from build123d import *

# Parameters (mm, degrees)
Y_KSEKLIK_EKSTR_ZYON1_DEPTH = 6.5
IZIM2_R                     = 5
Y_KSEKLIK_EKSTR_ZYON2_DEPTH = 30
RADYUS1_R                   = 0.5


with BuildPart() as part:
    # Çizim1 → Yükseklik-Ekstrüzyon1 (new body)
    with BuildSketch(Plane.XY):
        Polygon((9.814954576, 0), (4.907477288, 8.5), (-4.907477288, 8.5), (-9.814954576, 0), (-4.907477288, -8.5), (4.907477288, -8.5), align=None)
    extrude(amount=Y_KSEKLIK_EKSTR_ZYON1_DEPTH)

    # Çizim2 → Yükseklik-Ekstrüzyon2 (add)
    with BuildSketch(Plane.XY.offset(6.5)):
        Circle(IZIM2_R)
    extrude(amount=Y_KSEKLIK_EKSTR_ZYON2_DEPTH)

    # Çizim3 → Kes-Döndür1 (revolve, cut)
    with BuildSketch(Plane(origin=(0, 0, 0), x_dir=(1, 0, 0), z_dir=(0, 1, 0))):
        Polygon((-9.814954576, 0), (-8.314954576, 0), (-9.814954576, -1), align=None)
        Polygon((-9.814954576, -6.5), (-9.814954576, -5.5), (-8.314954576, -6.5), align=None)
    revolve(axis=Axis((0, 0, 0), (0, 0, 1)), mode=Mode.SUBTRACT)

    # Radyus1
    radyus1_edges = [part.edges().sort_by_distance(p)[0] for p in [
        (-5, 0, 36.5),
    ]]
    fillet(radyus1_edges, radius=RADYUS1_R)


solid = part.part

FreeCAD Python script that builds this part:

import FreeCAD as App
import Part
import Sketcher

V = App.Vector
Q = App.Units.Quantity


def edges_at(feature, points):
    """Names of the edges that pass closest to the given points."""
    edges = feature.Shape.Edges
    near = lambda p: min(range(len(edges)), key=lambda i: edges[i].distToShape(Part.Vertex(*p))[0])
    return sorted({f"Edge{near(p) + 1}" for p in points})

doc = App.newDocument("Part")
body = doc.addObject("PartDesign::Body", "Body")

sketch1 = body.newObject("Sketcher::SketchObject", "Sketch")
sketch1.AttachmentSupport = (doc.getObject("XY_Plane"), [""])
sketch1.MapMode = "FlatFace"
sketch1.addGeometry([
    Part.LineSegment(V(9.814955, 0, 0), V(4.907477, 8.5, 0)),
    Part.LineSegment(V(4.907477, 8.5, 0), V(-4.907477, 8.5, 0)),
    Part.LineSegment(V(-4.907477, 8.5, 0), V(-9.814955, 0, 0)),
    Part.LineSegment(V(-9.814955, 0, 0), V(-4.907477, -8.5, 0)),
    Part.LineSegment(V(-4.907477, -8.5, 0), V(4.907477, -8.5, 0)),
    Part.LineSegment(V(4.907477, -8.5, 0), V(9.814955, 0, 0)),
], False)
sketch1.addConstraint([
    Sketcher.Constraint("Coincident", 0, 2, 1, 1),
    Sketcher.Constraint("Coincident", 1, 2, 2, 1),
    Sketcher.Constraint("Coincident", 2, 2, 3, 1),
    Sketcher.Constraint("Coincident", 3, 2, 4, 1),
    Sketcher.Constraint("Coincident", 4, 2, 5, 1),
    Sketcher.Constraint("Coincident", 5, 2, 0, 1),
    Sketcher.Constraint("Horizontal", 1),
    Sketcher.Constraint("Horizontal", 4),
    Sketcher.Constraint("Symmetric", 0, 2, 3, 2, -1, 1),
    Sketcher.Constraint("Symmetric", 2, 2, 5, 2, -1, 1),
    Sketcher.Constraint("PointOnObject", 2, 2, -1),
    Sketcher.Constraint("Parallel", 2, 5),
    Sketcher.Constraint("Vertical", 1, 2, 3, 2),
    Sketcher.Constraint("Angle", 0, Q("120 deg")),
    Sketcher.Constraint("DistanceY", 3, 2, 1, 2, Q("17 mm")),
    Sketcher.Constraint("DistanceX", 1, 2, 1, 1, Q("9.814955 mm")),
])
pad1 = body.newObject("PartDesign::Pad", "Pad")
pad1.Profile = sketch1
pad1.Length = 6.5

sketch2 = body.newObject("Sketcher::SketchObject", "Sketch001")
sketch2.AttachmentSupport = (doc.getObject("XY_Plane"), [""])
sketch2.MapMode = "FlatFace"
sketch2.AttachmentOffset = App.Placement(V(0, 0, 6.5), App.Rotation())
sketch2.addGeometry(Part.Circle(V(0, 0, 0), V(0, 0, 1), 5), False)
sketch2.addConstraint([
    Sketcher.Constraint("Coincident", 0, 3, -1, 1),
    Sketcher.Constraint("Diameter", 0, Q("10 mm")),
])
pad2 = body.newObject("PartDesign::Pad", "Pad001")
pad2.Profile = sketch2
pad2.Length = 30

sketch3 = body.newObject("Sketcher::SketchObject", "Sketch002")
sketch3.AttachmentSupport = (doc.getObject("XZ_Plane"), [""])
sketch3.MapMode = "FlatFace"
sketch3.addGeometry([
    Part.LineSegment(V(-8.314955, 0, 0), V(-9.814955, 0, 0)),
    Part.LineSegment(V(-9.814955, 0, 0), V(-9.814955, 1, 0)),
    Part.LineSegment(V(-9.814955, 1, 0), V(-8.314955, 0, 0)),
    Part.LineSegment(V(-9.814955, 5.5, 0), V(-9.814955, 6.5, 0)),
    Part.LineSegment(V(-9.814955, 6.5, 0), V(-8.314955, 6.5, 0)),
    Part.LineSegment(V(-8.314955, 6.5, 0), V(-9.814955, 5.5, 0)),
], False)
sketch3.addConstraint([
    Sketcher.Constraint("Coincident", 0, 2, 1, 1),
    Sketcher.Constraint("Coincident", 1, 2, 2, 1),
    Sketcher.Constraint("Coincident", 2, 2, 0, 1),
    Sketcher.Constraint("Coincident", 3, 2, 4, 1),
    Sketcher.Constraint("Coincident", 4, 2, 5, 1),
    Sketcher.Constraint("Coincident", 5, 2, 3, 1),
    Sketcher.Constraint("Horizontal", 0),
    Sketcher.Constraint("Vertical", 1),
    Sketcher.Constraint("Vertical", 3),
    Sketcher.Constraint("Horizontal", 4),
    Sketcher.Constraint("PointOnObject", 0, 2, -1),
    Sketcher.Constraint("Vertical", 1, 2, 3, 2),
    Sketcher.Constraint("Vertical", 2, 2, 4, 2),
    Sketcher.Constraint("Equal", 1, 3),
    Sketcher.Constraint("DistanceY", 1, 1, 1, 2, Q("1 mm")),
    Sketcher.Constraint("DistanceX", 0, 2, 0, 1, Q("1.5 mm")),
    Sketcher.Constraint("DistanceY", -1, 1, 3, 2, Q("6.5 mm")),
    Sketcher.Constraint("DistanceX", 0, 2, -1, 1, Q("9.814955 mm")),
])
groove = body.newObject("PartDesign::Groove", "Groove")
groove.Profile = sketch3
groove.ReferenceAxis = (sketch3, ["V_Axis"])
groove.Angle = 360
doc.recompute()

fillet = body.newObject("PartDesign::Fillet", "Fillet")
fillet.Base = (groove, edges_at(groove, [(-5, 0, 36.5)]))
fillet.Radius = 0.5

doc.recompute()
